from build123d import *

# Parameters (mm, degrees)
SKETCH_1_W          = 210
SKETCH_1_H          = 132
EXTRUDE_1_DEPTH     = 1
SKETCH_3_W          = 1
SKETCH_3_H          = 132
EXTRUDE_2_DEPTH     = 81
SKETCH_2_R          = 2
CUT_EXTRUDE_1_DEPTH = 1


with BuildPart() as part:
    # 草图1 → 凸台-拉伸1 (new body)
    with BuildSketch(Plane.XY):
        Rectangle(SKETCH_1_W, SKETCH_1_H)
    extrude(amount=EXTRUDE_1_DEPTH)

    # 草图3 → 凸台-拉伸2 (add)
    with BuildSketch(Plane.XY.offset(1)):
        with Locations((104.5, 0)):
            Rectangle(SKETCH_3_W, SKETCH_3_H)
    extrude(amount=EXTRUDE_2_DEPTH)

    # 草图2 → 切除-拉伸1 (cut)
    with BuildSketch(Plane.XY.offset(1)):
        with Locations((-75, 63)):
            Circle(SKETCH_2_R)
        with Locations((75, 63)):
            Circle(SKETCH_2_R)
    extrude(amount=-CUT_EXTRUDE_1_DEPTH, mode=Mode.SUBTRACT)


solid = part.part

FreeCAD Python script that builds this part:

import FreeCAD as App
import Part
import Sketcher
Q = App.Units.Quantity

doc = App.newDocument("Part")
body = doc.addObject("PartDesign::Body", "Body")

sketch1 = body.newObject("Sketcher::SketchObject", "Sketch")
sketch1.AttachmentSupport = (doc.getObject("XY_Plane"), [""])
sketch1.MapMode = "FlatFace"
sketch1.addGeometry([
    Part.LineSegment(App.Vector(-105, 66, 0), App.Vector(-105, -66, 0)),
    Part.LineSegment(App.Vector(-105, -66, 0), App.Vector(105, -66, 0)),
    Part.LineSegment(App.Vector(105, -66, 0), App.Vector(105, 66, 0)),
    Part.LineSegment(App.Vector(105, 66, 0), App.Vector(-105, 66, 0)),
], False)
sketch1.addConstraint([
    Sketcher.Constraint("Coincident", 0, 2, 1, 1),
    Sketcher.Constraint("Coincident", 1, 2, 2, 1),
    Sketcher.Constraint("Coincident", 2, 2, 3, 1),
    Sketcher.Constraint("Coincident", 3, 2, 0, 1),
    Sketcher.Constraint("Vertical", 0),
    Sketcher.Constraint("Horizontal", 1),
    Sketcher.Constraint("Vertical", 2),
    Sketcher.Constraint("Horizontal", 3),
    Sketcher.Constraint("Symmetric", 0, 2, 2, 2, -1, 1),
    Sketcher.Constraint("DistanceX", 1, 1, 1, 2, Q("210 mm")),
    Sketcher.Constraint("DistanceY", 0, 2, 0, 1, Q("132 mm")),
])
pad1 = body.newObject("PartDesign::Pad", "Pad")
pad1.Profile = sketch1
pad1.Length = 1

sketch2 = body.newObject("Sketcher::SketchObject", "Sketch001")
sketch2.AttachmentSupport = (doc.getObject("XY_Plane"), [""])
sketch2.MapMode = "FlatFace"
sketch2.AttachmentOffset = App.Placement(App.Vector(0, 0, 1), App.Rotation())
sketch2.addGeometry([
    Part.LineSegment(App.Vector(104, 66, 0), App.Vector(104, -66, 0)),
    Part.LineSegment(App.Vector(104, -66, 0), App.Vector(105, -66, 0)),
    Part.LineSegment(App.Vector(105, -66, 0), App.Vector(105, 66, 0)),
    Part.LineSegment(App.Vector(105, 66, 0), App.Vector(104, 66, 0)),
], False)
sketch2.addConstraint([
    Sketcher.Constraint("Coincident", 0, 2, 1, 1),
    Sketcher.Constraint("Coincident", 1, 2, 2, 1),
    Sketcher.Constraint("Coincident", 2, 2, 3, 1),
    Sketcher.Constraint("Coincident", 3, 2, 0, 1),
    Sketcher.Constraint("Vertical", 0),
    Sketcher.Constraint("Horizontal", 1),
    Sketcher.Constraint("Vertical", 2),
    Sketcher.Constraint("Horizontal", 3),
    Sketcher.Constraint("DistanceX", 1, 1, 1, 2, Q("1 mm")),
    Sketcher.Constraint("DistanceY", 0, 2, 0, 1, Q("132 mm")),
    Sketcher.Constraint("DistanceX", -1, 1, 0, 2, Q("104 mm")),
    Sketcher.Constraint("DistanceY", 0, 2, -1, 1, Q("66 mm")),
])
pad2 = body.newObject("PartDesign::Pad", "Pad001")
pad2.Profile = sketch2
pad2.Length = 81

sketch3 = body.newObject("Sketcher::SketchObject", "Sketch002")
sketch3.AttachmentSupport = (doc.getObject("XY_Plane"), [""])
sketch3.MapMode = "FlatFace"
sketch3.AttachmentOffset = App.Placement(App.Vector(0, 0, 1), App.Rotation())
sketch3.addGeometry([
    Part.Circle(App.Vector(-75, 63, 0), App.Vector(0, 0, 1), 2),
    Part.Circle(App.Vector(75, 63, 0), App.Vector(0, 0, 1), 2),
], False)
sketch3.addConstraint([
    Sketcher.Constraint("Equal", 0, 1),
    Sketcher.Constraint("Symmetric", 0, 3, 1, 3, -2),
    Sketcher.Constraint("Diameter", 0, Q("4 mm")),
    Sketcher.Constraint("DistanceX", 0, 3, -1, 1, Q("75 mm")),
    Sketcher.Constraint("DistanceY", -1, 1, 0, 3, Q("63 mm")),
])
pocket1 = body.newObject("PartDesign::Pocket", "Pocket")
pocket1.Profile = sketch3
pocket1.Length = 1

doc.recompute()
